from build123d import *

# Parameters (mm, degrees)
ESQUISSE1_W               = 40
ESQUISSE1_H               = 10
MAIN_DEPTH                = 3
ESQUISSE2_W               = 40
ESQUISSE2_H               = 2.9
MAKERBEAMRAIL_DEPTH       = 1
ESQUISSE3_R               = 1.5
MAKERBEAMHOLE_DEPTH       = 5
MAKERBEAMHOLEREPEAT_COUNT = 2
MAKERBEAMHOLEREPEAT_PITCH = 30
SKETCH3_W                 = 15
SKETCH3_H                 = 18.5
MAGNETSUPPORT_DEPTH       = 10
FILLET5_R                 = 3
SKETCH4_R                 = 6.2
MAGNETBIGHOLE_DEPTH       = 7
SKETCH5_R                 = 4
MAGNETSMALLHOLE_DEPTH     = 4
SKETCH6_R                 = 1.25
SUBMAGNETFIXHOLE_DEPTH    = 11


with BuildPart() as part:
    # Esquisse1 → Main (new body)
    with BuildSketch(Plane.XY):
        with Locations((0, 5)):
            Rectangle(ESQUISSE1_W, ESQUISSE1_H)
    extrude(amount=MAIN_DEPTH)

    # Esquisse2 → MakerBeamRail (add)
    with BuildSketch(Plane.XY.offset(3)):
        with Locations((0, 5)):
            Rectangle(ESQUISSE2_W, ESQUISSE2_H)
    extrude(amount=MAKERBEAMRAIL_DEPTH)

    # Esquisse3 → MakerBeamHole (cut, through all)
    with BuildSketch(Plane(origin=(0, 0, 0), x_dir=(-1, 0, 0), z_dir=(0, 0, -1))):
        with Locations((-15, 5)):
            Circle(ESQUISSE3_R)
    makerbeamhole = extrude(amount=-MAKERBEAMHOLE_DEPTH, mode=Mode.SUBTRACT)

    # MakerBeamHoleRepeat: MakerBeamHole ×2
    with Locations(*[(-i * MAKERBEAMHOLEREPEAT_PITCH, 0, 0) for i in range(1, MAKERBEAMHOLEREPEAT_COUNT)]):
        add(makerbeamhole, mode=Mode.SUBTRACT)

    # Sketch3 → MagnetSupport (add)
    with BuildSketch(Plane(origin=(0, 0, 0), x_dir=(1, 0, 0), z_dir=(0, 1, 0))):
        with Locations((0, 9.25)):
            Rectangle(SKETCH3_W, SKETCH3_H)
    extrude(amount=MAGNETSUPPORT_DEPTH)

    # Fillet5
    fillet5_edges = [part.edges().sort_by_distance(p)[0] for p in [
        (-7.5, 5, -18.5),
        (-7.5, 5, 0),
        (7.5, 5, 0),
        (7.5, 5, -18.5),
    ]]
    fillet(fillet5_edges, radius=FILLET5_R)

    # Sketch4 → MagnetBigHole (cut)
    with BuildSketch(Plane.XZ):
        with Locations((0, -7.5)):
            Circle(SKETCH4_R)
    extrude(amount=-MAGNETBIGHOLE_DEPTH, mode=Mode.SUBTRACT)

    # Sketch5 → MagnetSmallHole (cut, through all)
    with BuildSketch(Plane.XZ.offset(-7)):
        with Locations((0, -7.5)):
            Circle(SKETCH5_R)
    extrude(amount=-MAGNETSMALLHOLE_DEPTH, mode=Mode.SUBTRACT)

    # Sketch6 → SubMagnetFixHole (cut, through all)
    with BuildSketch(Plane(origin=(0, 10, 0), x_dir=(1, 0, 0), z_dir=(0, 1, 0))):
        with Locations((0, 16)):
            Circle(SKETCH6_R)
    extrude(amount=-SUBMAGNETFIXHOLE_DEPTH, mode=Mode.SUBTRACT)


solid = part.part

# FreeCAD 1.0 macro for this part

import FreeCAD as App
import Part
import Sketcher
Q = App.Units.Quantity


def edges_at(feature, points):
    """Names of the edges that pass closest to the given points."""
    edges = feature.Shape.Edges
    near = lambda p: min(range(len(edges)), key=lambda i: edges[i].distToShape(Part.Vertex(*p))[0])
    return sorted({f"Edge{near(p) + 1}" for p in points})

doc = App.newDocument("Part")
params = doc.addObject("Spreadsheet::Sheet", "Params")
for row, (alias, value) in enumerate([
    ("sketch1_width", "40 mm"),
    ("sketch1_height", "10 mm"),
    ("pad1_length", "3 mm"),
    ("sketch2_width", "40 mm"),
    ("sketch2_height", "2.9 mm"),
    ("pad2_length", "1 mm"),
    ("sketch3_diameter", "3 mm"),
    ("linearpattern_pitch", "30 mm"),
    ("sketch4_width", "15 mm"),
    ("sketch4_height", "18.5 mm"),
    ("pad3_length", "10 mm"),
    ("fillet_radius", "3 mm"),
    ("sketch5_diameter", "12.4 mm"),
    ("pocket2_length", "7 mm"),
    ("sketch6_diameter", "8 mm"),
    ("sketch7_diameter", "2.5 mm"),
], start=1):
    params.set(f"A{row}", alias)
    params.set(f"B{row}", "=" + value)
    params.setAlias(f"B{row}", alias)

body = doc.addObject("PartDesign::Body", "Body")

sketch1 = body.newObject("Sketcher::SketchObject", "Sketch")
sketch1.AttachmentSupport = (doc.getObject("XY_Plane"), [""])
sketch1.MapMode = "FlatFace"
sketch1.addGeometry(Part.LineSegment(App.Vector(-20, 10, 0), App.Vector(-20, 0, 0)), False)
sketch1.addGeometry(Part.LineSegment(App.Vector(-20, 0, 0), App.Vector(20, 0, 0)), False)
sketch1.addGeometry(Part.LineSegment(App.Vector(20, 0, 0), App.Vector(20, 10, 0)), False)
sketch1.addGeometry(Part.LineSegment(App.Vector(20, 10, 0), App.Vector(-20, 10, 0)), False)
sketch1.addConstraint(Sketcher.Constraint("Coincident", 0, 2, 1, 1))
sketch1.addConstraint(Sketcher.Constraint("Coincident", 1, 2, 2, 1))
sketch1.addConstraint(Sketcher.Constraint("Coincident", 2, 2, 3, 1))
sketch1.addConstraint(Sketcher.Constraint("Coincident", 3, 2, 0, 1))
sketch1.addConstraint(Sketcher.Constraint("Vertical", 0))
sketch1.addConstraint(Sketcher.Constraint("Horizontal", 1))
sketch1.addConstraint(Sketcher.Constraint("Vertical", 2))
sketch1.addConstraint(Sketcher.Constraint("Horizontal", 3))
sketch1.addConstraint(Sketcher.Constraint("Symmetric", 0, 2, 1, 2, -1, 1))
sketch1.addConstraint(Sketcher.Constraint("DistanceX", 1, 1, 1, 2, Q("40 mm")))
sketch1.addConstraint(Sketcher.Constraint("DistanceY", 0, 2, 0, 1, Q("10 mm")))
sketch1.setExpression("Constraints[9]", "Params.sketch1_width")
sketch1.setExpression("Constraints[10]", "Params.sketch1_height")
pad1 = body.newObject("PartDesign::Pad", "Pad")
pad1.Profile = sketch1
pad1.setExpression("Length", "Params.pad1_length")

sketch2 = body.newObject("Sketcher::SketchObject", "Sketch001")
sketch2.AttachmentSupport = (doc.getObject("XY_Plane"), [""])
sketch2.MapMode = "FlatFace"
sketch2.AttachmentOffset = App.Placement(App.Vector(0, 0, 3), App.Rotation())
sketch2.addGeometry(Part.LineSegment(App.Vector(-20, 6.45, 0), App.Vector(-20, 3.55, 0)), False)
sketch2.addGeometry(Part.LineSegment(App.Vector(-20, 3.55, 0), App.Vector(20, 3.55, 0)), False)
sketch2.addGeometry(Part.LineSegment(App.Vector(20, 3.55, 0), App.Vector(20, 6.45, 0)), False)
sketch2.addGeometry(Part.LineSegment(App.Vector(20, 6.45, 0), App.Vector(-20, 6.45, 0)), False)
sketch2.addConstraint(Sketcher.Constraint("Coincident", 0, 2, 1, 1))
sketch2.addConstraint(Sketcher.Constraint("Coincident", 1, 2, 2, 1))
sketch2.addConstraint(Sketcher.Constraint("Coincident", 2, 2, 3, 1))
sketch2.addConstraint(Sketcher.Constraint("Coincident", 3, 2, 0, 1))
sketch2.addConstraint(Sketcher.Constraint("Vertical", 0))
sketch2.addConstraint(Sketcher.Constraint("Horizontal", 1))
sketch2.addConstraint(Sketcher.Constraint("Vertical", 2))
sketch2.addConstraint(Sketcher.Constraint("Horizontal", 3))
sketch2.addConstraint(Sketcher.Constraint("DistanceX", 1, 1, 1, 2, Q("40 mm")))
sketch2.addConstraint(Sketcher.Constraint("DistanceY", 0, 2, 0, 1, Q("2.9 mm")))
sketch2.addConstraint(Sketcher.Constraint("DistanceX", 0, 2, -1, 1, Q("20 mm")))
sketch2.addConstraint(Sketcher.Constraint("DistanceY", -1, 1, 0, 2, Q("3.55 mm")))
sketch2.setExpression("Constraints[8]", "Params.sketch2_width")
sketch2.setExpression("Constraints[9]", "Params.sketch2_height")
pad2 = body.newObject("PartDesign::Pad", "Pad001")
pad2.Profile = sketch2
pad2.setExpression("Length", "Params.pad2_length")

sketch3 = body.newObject("Sketcher::SketchObject", "Sketch002")
sketch3.AttachmentSupport = (doc.getObject("XY_Plane"), [""])
sketch3.MapMode = "FlatFace"
sketch3.addGeometry(Part.Circle(App.Vector(15, 5, 0), App.Vector(0, 0, 1), 1.5), False)
sketch3.addConstraint(Sketcher.Constraint("Diameter", 0, Q("3 mm")))
sketch3.addConstraint(Sketcher.Constraint("DistanceX", -1, 1, 0, 3, Q("15 mm")))
sketch3.addConstraint(Sketcher.Constraint("DistanceY", -1, 1, 0, 3, Q("5 mm")))
sketch3.setExpression("Constraints[0]", "Params.sketch3_diameter")
pocket1 = body.newObject("PartDesign::Pocket", "Pocket")
pocket1.Profile = sketch3
pocket1.Type = "ThroughAll"
pocket1.Reversed = True
doc.recompute()

linearpattern = body.newObject("PartDesign::LinearPattern", "LinearPattern")
linearpattern.Originals = [pocket1]
linearpattern.Direction = (doc.getObject("X_Axis"), [""])
linearpattern.Mode = "offset"
linearpattern.setExpression("Offset", "Params.linearpattern_pitch")
linearpattern.Occurrences = 2
linearpattern.Reversed = True
body.Tip = linearpattern

sketch4 = body.newObject("Sketcher::SketchObject", "Sketch003")
sketch4.AttachmentSupport = (doc.getObject("XZ_Plane"), [""])
sketch4.MapMode = "FlatFace"
sketch4.addGeometry(Part.LineSegment(App.Vector(-7.5, -18.5, 0), App.Vector(-7.5, 0, 0)), False)
sketch4.addGeometry(Part.LineSegment(App.Vector(-7.5, 0, 0), App.Vector(7.5, 0, 0)), False)
sketch4.addGeometry(Part.LineSegment(App.Vector(7.5, 0, 0), App.Vector(7.5, -18.5, 0)), False)
sketch4.addGeometry(Part.LineSegment(App.Vector(7.5, -18.5, 0), App.Vector(-7.5, -18.5, 0)), False)
sketch4.addConstraint(Sketcher.Constraint("Coincident", 0, 2, 1, 1))
sketch4.addConstraint(Sketcher.Constraint("Coincident", 1, 2, 2, 1))
sketch4.addConstraint(Sketcher.Constraint("Coincident", 2, 2, 3, 1))
sketch4.addConstraint(Sketcher.Constraint("Coincident", 3, 2, 0, 1))
sketch4.addConstraint(Sketcher.Constraint("Vertical", 0))
sketch4.addConstraint(Sketcher.Constraint("Horizontal", 1))
sketch4.addConstraint(Sketcher.Constraint("Vertical", 2))
sketch4.addConstraint(Sketcher.Constraint("Horizontal", 3))
sketch4.addConstraint(Sketcher.Constraint("Symmetric", 0, 2, 1, 2, -1, 1))
sketch4.addConstraint(Sketcher.Constraint("DistanceX", 1, 1, 1, 2, Q("15 mm")))
sketch4.addConstraint(Sketcher.Constraint("DistanceY", 0, 1, 0, 2, Q("18.5 mm")))
sketch4.setExpression("Constraints[9]", "Params.sketch4_width")
sketch4.setExpression("Constraints[10]", "Params.sketch4_height")
pad3 = body.newObject("PartDesign::Pad", "Pad002")
pad3.Profile = sketch4
pad3.setExpression("Length", "Params.pad3_length")
pad3.Reversed = True
doc.recompute()

fillet = body.newObject("PartDesign::Fillet", "Fillet")
fillet.Base = (pad3, edges_at(pad3, [
    (-7.5, 5, -18.5),
    (-7.5, 5, 0),
    (7.5, 5, 0),
    (7.5, 5, -18.5),
]))
fillet.setExpression("Radius", "Params.fillet_radius")

sketch5 = body.newObject("Sketcher::SketchObject", "Sketch004")
sketch5.AttachmentSupport = (doc.getObject("XZ_Plane"), [""])
sketch5.MapMode = "FlatFace"
sketch5.addGeometry(Part.Circle(App.Vector(0, -7.5, 0), App.Vector(0, 0, 1), 6.2), False)
sketch5.addConstraint(Sketcher.Constraint("PointOnObject", 0, 3, -2))
sketch5.addConstraint(Sketcher.Constraint("Diameter", 0, Q("12.4 mm")))
sketch5.addConstraint(Sketcher.Constraint("DistanceY", 0, 3, -1, 1, Q("7.5 mm")))
sketch5.setExpression("Constraints[1]", "Params.sketch5_diameter")
pocket2 = body.newObject("PartDesign::Pocket", "Pocket001")
pocket2.Profile = sketch5
pocket2.setExpression("Length", "Params.pocket2_length")

sketch6 = body.newObject("Sketcher::SketchObject", "Sketch005")
sketch6.AttachmentSupport = (doc.getObject("XZ_Plane"), [""])
sketch6.MapMode = "FlatFace"
sketch6.AttachmentOffset = App.Placement(App.Vector(0, 0, -7), App.Rotation())
sketch6.addGeometry(Part.Circle(App.Vector(0, -7.5, 0), App.Vector(0, 0, 1), 4), False)
sketch6.addConstraint(Sketcher.Constraint("PointOnObject", 0, 3, -2))
sketch6.addConstraint(Sketcher.Constraint("Diameter", 0, Q("8 mm")))
sketch6.addConstraint(Sketcher.Constraint("DistanceY", 0, 3, -1, 1, Q("7.5 mm")))
sketch6.setExpression("Constraints[1]", "Params.sketch6_diameter")
pocket3 = body.newObject("PartDesign::Pocket", "Pocket002")
pocket3.Profile = sketch6
pocket3.Type = "ThroughAll"

sketch7 = body.newObject("Sketcher::SketchObject", "Sketch006")
sketch7.AttachmentSupport = (doc.getObject("XZ_Plane"), [""])
sketch7.MapMode = "FlatFace"
sketch7.AttachmentOffset = App.Placement(App.Vector(0, 0, -10), App.Rotation())
sketch7.addGeometry(Part.Circle(App.Vector(0, -16, 0), App.Vector(0, 0, 1), 1.25), False)
sketch7.addConstraint(Sketcher.Constraint("PointOnObject", 0, 3, -2))
sketch7.addConstraint(Sketcher.Constraint("Diameter", 0, Q("2.5 mm")))
sketch7.addConstraint(Sketcher.Constraint("DistanceY", 0, 3, -1, 1, Q("16 mm")))
sketch7.setExpression("Constraints[1]", "Params.sketch7_diameter")
pocket4 = body.newObject("PartDesign::Pocket", "Pocket003")
pocket4.Profile = sketch7
pocket4.Type = "ThroughAll"
pocket4.Reversed = True

doc.recompute()
